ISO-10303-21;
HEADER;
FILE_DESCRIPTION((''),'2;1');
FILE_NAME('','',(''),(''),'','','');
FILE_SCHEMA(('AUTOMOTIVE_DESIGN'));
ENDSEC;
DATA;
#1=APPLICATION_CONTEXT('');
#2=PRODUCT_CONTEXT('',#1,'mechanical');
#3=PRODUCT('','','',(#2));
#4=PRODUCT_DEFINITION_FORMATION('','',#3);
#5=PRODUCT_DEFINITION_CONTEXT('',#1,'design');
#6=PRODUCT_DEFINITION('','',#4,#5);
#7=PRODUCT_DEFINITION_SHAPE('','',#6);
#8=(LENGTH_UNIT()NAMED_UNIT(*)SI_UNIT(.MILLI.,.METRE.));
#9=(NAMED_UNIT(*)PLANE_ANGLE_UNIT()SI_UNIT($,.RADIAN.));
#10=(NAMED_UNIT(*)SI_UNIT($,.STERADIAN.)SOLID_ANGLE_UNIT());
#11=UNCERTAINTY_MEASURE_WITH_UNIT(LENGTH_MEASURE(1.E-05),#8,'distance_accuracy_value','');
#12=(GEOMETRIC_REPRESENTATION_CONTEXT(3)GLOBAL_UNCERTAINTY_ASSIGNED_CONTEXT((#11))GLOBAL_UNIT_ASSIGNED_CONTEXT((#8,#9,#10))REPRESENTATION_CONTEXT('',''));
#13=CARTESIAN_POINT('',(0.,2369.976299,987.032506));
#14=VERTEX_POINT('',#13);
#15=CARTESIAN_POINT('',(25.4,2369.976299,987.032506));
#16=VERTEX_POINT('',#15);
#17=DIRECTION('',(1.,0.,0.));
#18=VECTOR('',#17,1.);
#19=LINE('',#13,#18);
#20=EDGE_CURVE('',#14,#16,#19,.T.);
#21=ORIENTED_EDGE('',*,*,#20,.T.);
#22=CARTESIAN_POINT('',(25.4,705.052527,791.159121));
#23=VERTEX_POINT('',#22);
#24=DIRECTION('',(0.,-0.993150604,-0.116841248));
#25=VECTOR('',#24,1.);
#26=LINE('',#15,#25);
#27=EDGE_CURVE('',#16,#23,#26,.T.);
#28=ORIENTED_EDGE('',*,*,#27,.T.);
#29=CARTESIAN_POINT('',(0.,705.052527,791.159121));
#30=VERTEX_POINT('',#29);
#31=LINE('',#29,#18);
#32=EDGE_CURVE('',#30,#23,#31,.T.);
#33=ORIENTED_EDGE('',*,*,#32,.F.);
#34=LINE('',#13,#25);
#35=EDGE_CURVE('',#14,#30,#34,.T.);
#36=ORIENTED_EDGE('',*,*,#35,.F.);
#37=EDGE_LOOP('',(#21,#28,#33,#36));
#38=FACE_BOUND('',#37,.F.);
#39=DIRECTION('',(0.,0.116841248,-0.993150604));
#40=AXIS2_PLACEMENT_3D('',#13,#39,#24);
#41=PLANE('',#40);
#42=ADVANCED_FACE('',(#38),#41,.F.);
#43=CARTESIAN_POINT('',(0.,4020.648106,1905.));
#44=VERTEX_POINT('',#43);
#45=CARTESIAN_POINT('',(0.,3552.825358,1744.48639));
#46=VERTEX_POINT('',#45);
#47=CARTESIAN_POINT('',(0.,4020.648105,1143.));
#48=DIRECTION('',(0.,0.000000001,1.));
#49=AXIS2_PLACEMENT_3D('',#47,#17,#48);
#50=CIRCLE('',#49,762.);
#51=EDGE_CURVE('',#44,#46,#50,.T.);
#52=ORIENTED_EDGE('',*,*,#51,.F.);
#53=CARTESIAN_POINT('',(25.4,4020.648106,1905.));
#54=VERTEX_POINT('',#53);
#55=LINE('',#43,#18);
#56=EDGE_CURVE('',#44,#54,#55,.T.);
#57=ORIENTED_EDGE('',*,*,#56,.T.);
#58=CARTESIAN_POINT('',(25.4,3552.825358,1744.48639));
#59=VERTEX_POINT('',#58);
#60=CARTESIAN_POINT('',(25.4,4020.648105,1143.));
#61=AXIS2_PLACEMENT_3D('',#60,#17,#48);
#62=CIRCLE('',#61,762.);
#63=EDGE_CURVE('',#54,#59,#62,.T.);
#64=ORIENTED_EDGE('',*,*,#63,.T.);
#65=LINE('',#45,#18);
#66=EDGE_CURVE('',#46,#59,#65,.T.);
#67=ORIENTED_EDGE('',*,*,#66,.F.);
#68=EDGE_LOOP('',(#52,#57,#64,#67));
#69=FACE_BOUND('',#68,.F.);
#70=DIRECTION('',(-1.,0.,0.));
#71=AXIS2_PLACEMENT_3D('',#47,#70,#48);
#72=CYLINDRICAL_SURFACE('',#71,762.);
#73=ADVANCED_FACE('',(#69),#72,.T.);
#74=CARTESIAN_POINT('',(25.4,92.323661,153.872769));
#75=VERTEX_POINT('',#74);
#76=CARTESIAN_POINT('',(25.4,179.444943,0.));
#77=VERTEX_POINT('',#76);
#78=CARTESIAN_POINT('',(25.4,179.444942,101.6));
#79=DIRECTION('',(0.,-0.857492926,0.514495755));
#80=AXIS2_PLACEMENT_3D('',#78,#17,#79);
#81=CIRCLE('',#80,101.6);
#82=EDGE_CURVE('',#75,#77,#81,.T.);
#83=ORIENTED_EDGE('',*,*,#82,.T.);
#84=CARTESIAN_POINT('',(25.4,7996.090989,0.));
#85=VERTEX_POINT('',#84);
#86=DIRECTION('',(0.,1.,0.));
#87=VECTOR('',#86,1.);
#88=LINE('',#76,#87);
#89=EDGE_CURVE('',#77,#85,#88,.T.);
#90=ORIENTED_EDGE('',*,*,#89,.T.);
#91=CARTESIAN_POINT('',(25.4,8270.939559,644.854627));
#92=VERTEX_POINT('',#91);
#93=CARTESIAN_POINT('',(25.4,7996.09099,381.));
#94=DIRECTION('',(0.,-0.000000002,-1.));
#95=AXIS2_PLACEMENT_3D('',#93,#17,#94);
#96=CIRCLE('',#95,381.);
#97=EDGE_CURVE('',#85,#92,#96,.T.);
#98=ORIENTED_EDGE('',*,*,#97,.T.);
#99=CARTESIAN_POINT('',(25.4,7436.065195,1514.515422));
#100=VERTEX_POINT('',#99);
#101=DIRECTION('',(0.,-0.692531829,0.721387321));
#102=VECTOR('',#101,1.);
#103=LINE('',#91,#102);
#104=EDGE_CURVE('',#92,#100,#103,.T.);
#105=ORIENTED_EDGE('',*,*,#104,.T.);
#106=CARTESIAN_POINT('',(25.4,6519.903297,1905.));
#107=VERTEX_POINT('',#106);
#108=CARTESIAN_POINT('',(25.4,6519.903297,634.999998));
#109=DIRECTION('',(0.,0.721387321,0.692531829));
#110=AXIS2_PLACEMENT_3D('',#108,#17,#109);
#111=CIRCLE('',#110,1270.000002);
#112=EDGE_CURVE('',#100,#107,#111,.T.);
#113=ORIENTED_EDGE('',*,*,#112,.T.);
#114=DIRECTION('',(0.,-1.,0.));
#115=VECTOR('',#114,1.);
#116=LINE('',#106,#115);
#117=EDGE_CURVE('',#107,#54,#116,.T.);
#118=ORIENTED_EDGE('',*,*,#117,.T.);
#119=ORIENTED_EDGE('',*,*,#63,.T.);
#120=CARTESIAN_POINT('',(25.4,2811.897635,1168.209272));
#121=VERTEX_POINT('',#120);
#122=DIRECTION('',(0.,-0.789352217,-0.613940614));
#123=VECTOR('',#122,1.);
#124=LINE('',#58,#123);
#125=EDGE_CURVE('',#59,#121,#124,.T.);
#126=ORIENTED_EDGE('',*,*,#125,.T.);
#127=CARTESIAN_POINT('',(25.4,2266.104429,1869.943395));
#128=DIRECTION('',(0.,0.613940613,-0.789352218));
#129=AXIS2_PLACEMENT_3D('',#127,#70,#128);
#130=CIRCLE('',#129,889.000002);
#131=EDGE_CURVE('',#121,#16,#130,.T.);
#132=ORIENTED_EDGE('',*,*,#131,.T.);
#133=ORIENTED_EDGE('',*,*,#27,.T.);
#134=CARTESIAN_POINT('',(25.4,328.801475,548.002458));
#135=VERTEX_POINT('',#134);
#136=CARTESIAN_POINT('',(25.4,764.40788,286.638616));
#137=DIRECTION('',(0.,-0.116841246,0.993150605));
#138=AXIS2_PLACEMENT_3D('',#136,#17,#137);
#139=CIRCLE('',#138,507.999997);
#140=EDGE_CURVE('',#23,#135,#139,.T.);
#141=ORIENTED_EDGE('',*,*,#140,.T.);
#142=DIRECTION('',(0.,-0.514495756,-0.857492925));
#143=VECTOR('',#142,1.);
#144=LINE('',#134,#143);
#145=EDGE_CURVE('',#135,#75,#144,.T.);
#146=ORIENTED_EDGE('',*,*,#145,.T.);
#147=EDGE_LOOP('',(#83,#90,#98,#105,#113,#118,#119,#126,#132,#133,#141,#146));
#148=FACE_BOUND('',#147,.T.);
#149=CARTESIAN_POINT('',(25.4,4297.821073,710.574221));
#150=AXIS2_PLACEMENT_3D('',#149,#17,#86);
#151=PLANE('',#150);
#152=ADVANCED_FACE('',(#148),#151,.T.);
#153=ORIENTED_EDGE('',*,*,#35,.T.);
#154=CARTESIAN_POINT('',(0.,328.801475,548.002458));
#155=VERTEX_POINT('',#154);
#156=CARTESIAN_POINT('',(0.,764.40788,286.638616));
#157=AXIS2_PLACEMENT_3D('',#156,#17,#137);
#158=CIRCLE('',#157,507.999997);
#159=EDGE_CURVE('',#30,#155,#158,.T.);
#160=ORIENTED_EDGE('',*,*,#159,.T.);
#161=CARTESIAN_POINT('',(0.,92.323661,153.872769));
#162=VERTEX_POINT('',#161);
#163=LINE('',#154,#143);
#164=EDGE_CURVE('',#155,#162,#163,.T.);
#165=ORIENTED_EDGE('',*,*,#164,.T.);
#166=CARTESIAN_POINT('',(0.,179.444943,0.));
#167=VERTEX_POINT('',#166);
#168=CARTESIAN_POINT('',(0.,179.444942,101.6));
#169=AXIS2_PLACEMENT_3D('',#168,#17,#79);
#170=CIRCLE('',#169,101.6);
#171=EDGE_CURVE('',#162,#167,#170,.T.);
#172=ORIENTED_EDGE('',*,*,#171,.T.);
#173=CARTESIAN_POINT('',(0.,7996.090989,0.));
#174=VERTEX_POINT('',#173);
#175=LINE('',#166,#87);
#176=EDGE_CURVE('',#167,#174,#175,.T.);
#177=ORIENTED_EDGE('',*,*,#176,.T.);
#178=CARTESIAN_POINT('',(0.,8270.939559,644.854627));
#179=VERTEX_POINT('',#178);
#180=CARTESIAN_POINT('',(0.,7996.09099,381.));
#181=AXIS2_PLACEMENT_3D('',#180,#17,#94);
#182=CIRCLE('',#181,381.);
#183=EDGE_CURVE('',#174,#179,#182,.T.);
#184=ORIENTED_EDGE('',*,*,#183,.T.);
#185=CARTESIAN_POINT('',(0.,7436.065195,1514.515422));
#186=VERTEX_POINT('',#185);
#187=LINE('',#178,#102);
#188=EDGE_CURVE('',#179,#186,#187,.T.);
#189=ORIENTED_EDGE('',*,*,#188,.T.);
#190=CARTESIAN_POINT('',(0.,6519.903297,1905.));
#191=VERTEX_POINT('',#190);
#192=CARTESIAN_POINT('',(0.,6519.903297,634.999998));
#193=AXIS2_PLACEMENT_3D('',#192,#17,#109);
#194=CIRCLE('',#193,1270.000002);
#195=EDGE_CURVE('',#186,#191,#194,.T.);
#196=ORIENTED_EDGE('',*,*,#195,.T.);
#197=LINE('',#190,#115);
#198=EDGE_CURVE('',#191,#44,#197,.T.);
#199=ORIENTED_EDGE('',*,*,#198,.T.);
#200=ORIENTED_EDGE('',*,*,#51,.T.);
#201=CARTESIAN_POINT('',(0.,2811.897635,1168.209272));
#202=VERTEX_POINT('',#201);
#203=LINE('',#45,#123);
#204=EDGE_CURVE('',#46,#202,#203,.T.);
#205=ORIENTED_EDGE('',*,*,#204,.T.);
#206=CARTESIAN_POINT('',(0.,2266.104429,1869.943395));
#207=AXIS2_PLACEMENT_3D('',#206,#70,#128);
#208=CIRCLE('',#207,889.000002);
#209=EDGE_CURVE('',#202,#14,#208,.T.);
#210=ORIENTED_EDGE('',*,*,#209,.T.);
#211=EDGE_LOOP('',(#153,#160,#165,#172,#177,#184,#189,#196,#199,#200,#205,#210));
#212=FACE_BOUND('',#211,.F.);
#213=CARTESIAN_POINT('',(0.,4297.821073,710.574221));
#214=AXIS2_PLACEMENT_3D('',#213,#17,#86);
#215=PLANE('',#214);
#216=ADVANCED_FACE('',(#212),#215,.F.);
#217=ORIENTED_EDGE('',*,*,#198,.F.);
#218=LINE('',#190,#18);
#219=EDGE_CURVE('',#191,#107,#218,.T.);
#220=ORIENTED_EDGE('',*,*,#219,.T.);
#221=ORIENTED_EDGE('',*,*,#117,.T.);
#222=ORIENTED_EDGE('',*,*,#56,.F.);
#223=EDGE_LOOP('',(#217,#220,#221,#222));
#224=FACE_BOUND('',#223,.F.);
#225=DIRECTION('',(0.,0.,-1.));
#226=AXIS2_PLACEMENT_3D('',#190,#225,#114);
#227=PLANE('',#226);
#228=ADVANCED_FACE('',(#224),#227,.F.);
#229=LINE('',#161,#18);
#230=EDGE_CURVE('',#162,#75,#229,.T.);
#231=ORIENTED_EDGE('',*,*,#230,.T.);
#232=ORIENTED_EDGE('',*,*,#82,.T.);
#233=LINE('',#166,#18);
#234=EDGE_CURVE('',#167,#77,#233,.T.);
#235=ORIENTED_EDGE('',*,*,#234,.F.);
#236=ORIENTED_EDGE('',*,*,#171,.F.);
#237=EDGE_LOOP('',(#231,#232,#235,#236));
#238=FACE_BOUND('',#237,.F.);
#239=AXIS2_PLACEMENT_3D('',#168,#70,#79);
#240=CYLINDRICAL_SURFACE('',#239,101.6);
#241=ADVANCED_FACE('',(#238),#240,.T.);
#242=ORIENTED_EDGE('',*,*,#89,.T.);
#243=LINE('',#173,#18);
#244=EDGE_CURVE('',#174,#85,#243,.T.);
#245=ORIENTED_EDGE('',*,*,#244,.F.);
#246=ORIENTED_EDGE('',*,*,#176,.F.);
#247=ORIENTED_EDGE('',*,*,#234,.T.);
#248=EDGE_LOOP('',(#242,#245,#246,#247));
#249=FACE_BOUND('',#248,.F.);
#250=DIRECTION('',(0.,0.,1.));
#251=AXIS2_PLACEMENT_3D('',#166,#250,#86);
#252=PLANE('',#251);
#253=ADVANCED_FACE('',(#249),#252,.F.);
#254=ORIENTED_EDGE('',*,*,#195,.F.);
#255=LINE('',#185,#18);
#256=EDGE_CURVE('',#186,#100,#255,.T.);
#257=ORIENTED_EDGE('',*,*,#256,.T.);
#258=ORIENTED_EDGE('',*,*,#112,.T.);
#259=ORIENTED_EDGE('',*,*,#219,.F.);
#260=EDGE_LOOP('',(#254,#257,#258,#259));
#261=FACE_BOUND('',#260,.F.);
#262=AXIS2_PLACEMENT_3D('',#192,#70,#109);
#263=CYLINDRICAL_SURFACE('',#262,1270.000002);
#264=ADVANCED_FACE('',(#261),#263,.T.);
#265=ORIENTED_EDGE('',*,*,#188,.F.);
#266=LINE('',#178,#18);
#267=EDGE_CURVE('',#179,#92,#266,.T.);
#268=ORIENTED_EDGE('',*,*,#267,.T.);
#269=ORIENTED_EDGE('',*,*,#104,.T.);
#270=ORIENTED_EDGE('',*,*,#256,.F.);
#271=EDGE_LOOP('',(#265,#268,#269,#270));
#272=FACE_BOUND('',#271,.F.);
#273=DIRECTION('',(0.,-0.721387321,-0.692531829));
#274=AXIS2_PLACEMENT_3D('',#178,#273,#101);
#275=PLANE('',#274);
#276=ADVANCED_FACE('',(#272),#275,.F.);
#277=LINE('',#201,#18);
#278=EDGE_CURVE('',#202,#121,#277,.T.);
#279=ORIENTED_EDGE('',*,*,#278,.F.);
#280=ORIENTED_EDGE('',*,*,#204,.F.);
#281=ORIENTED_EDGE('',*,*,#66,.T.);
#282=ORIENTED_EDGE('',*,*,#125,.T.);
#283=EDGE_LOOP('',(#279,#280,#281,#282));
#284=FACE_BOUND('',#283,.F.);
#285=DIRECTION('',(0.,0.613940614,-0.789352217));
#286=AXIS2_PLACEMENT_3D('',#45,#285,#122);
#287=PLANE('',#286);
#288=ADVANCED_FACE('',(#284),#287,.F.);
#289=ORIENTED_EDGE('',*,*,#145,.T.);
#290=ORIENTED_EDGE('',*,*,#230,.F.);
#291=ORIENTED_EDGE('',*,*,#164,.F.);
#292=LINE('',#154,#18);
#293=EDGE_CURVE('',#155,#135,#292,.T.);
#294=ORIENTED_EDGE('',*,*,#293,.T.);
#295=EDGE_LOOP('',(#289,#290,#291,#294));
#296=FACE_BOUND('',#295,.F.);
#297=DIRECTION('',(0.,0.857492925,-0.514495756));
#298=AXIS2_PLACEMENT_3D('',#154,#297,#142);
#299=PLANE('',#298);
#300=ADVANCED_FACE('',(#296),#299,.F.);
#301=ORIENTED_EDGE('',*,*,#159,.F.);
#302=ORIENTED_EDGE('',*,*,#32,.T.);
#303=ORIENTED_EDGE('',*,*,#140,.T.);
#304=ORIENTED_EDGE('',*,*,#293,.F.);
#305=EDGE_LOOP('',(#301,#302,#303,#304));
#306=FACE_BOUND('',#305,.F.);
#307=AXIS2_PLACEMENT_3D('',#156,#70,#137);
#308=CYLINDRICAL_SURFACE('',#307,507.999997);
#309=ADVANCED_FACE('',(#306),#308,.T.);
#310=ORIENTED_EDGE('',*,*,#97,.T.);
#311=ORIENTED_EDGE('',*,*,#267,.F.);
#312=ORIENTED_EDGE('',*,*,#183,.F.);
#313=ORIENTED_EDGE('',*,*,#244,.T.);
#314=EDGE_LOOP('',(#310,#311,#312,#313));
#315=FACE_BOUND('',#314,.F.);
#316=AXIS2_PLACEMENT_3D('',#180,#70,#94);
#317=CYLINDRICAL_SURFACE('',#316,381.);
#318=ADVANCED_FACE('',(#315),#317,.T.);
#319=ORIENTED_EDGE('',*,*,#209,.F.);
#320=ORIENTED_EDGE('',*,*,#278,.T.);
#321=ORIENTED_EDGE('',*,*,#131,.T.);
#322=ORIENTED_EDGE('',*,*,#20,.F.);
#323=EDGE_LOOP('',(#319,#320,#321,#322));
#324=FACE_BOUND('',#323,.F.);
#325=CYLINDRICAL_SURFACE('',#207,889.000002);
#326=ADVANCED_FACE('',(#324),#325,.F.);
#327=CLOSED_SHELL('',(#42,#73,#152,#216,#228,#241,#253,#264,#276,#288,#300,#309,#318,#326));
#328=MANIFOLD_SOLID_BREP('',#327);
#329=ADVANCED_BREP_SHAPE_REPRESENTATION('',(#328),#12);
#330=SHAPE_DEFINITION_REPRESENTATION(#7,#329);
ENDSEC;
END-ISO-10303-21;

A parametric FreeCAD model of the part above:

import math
import FreeCAD as App
import Part
import Sketcher
from FreeCAD import Vector
Q = App.Units.Quantity

doc = App.newDocument("Part")
body = doc.addObject("PartDesign::Body", "Body")

sketch1 = doc.addObject("Sketcher::SketchObject", "Sketch")
body.addObject(sketch1)
sketch1.AttachmentSupport = (doc.YZ_Plane, [""])
sketch1.MapMode = "FlatFace"
sketch1.addGeometry(Part.ArcOfCircle(Part.Circle(Vector(179, 102, 0), Vector(0, 0, 1), 102), math.radians(149), math.radians(270)), False)
sketch1.addGeometry(Part.LineSegment(Vector(179, 0, 0), Vector(7996, 0, 0)), False)
sketch1.addGeometry(Part.ArcOfCircle(Part.Circle(Vector(7996, 381, 0), Vector(0, 0, 1), 381), math.radians(-90), math.radians(44)), False)
sketch1.addGeometry(Part.LineSegment(Vector(8271, 645, 0), Vector(7436, 1515, 0)), False)
sketch1.addGeometry(Part.ArcOfCircle(Part.Circle(Vector(6520, 635, 0), Vector(0, 0, 1), 1270), math.radians(44), math.radians(90)), False)
sketch1.addGeometry(Part.LineSegment(Vector(6520, 1905, 0), Vector(4021, 1905, 0)), False)
sketch1.addGeometry(Part.ArcOfCircle(Part.Circle(Vector(4021, 1143, 0), Vector(0, 0, 1), 762), math.radians(90), math.radians(128)), False)
sketch1.addGeometry(Part.LineSegment(Vector(3553, 1744, 0), Vector(2812, 1168, 0)), False)
sketch1.addGeometry(Part.ArcOfCircle(Part.Circle(Vector(2266, 1870, 0), Vector(0, 0, 1), 889), math.radians(-83), math.radians(-52)), False)
sketch1.addGeometry(Part.LineSegment(Vector(2370, 987, 0), Vector(705, 791, 0)), False)
sketch1.addGeometry(Part.ArcOfCircle(Part.Circle(Vector(764, 287, 0), Vector(0, 0, 1), 508), math.radians(97), math.radians(149)), False)
sketch1.addGeometry(Part.LineSegment(Vector(329, 548, 0), Vector(92, 154, 0)), False)
sketch1.addConstraint(Sketcher.Constraint("Tangent", 0, 2, 1, 1))
sketch1.addConstraint(Sketcher.Constraint("Tangent", 1, 2, 2, 1))
sketch1.addConstraint(Sketcher.Constraint("Tangent", 2, 2, 3, 1))
sketch1.addConstraint(Sketcher.Constraint("Coincident", 3, 2, 4, 1))
sketch1.addConstraint(Sketcher.Constraint("Coincident", 4, 2, 5, 1))
sketch1.addConstraint(Sketcher.Constraint("Coincident", 5, 2, 6, 1))
sketch1.addConstraint(Sketcher.Constraint("Tangent", 6, 2, 7, 1))
sketch1.addConstraint(Sketcher.Constraint("Coincident", 7, 2, 8, 2))
sketch1.addConstraint(Sketcher.Constraint("Coincident", 8, 1, 9, 1))
sketch1.addConstraint(Sketcher.Constraint("Tangent", 9, 2, 10, 1))
sketch1.addConstraint(Sketcher.Constraint("Tangent", 10, 2, 11, 1))
sketch1.addConstraint(Sketcher.Constraint("Tangent", 11, 2, 0, 1))
sketch1.addConstraint(Sketcher.Constraint("Horizontal", 1))
sketch1.addConstraint(Sketcher.Constraint("Horizontal", 5))
sketch1.addConstraint(Sketcher.Constraint("PointOnObject", 0, 2, -1))
sketch1.addConstraint(Sketcher.Constraint("Vertical", 6, 3, 5, 2))
sketch1.addConstraint(Sketcher.Constraint("Radius", 0, Q("4 in")))
sketch1.addConstraint(Sketcher.Constraint("Radius", 2, Q("15 in")))
sketch1.addConstraint(Sketcher.Constraint("Radius", 4, Q("50.0000001 in")))
sketch1.addConstraint(Sketcher.Constraint("Radius", 6, Q("30 in")))
sketch1.addConstraint(Sketcher.Constraint("Radius", 8, Q("35.0000001 in")))
sketch1.addConstraint(Sketcher.Constraint("Radius", 10, Q("19.9999999 in")))
sketch1.addConstraint(Sketcher.Constraint("DistanceY", -1, 1, 4, 3, Q("24.9999999 in")))
sketch1.addConstraint(Sketcher.Constraint("DistanceX", 5, 2, 5, 1, 2499.255191))
sketch1.addConstraint(Sketcher.Constraint("DistanceX", 4, 3, 3, 2, 916.161898))
sketch1.addConstraint(Sketcher.Constraint("DistanceX", 9, 2, 8, 3, 1561.051902))
sketch1.addConstraint(Sketcher.Constraint("Distance", 3, 1205.539341))
sketch1.addConstraint(Sketcher.Constraint("Distance", 7, 938.652868))
sketch1.addConstraint(Sketcher.Constraint("Distance", 9, 1676.406141))
sketch1.addConstraint(Sketcher.Constraint("Distance", 11, 459.630252))
sketch1.addConstraint(Sketcher.Constraint("DistanceX", 1, 1, 1, 2, 7816.646046))
sketch1.addConstraint(Sketcher.Constraint("DistanceX", -1, 1, 2, 3, 7996.09099))
sketch1.addConstraint(Sketcher.Constraint("DistanceX", -1, 1, 8, 3, 2266.104429))
sketch1.addConstraint(Sketcher.Constraint("DistanceX", -1, 1, 10, 3, 764.40788))
sketch1.addConstraint(Sketcher.Constraint("DistanceY", -1, 1, 7, 2, 1168.209272))
pad1 = doc.addObject("PartDesign::Pad", "Pad")
body.addObject(pad1)
pad1.Profile = sketch1
pad1.Length = Q("1 in")

doc.recompute()
